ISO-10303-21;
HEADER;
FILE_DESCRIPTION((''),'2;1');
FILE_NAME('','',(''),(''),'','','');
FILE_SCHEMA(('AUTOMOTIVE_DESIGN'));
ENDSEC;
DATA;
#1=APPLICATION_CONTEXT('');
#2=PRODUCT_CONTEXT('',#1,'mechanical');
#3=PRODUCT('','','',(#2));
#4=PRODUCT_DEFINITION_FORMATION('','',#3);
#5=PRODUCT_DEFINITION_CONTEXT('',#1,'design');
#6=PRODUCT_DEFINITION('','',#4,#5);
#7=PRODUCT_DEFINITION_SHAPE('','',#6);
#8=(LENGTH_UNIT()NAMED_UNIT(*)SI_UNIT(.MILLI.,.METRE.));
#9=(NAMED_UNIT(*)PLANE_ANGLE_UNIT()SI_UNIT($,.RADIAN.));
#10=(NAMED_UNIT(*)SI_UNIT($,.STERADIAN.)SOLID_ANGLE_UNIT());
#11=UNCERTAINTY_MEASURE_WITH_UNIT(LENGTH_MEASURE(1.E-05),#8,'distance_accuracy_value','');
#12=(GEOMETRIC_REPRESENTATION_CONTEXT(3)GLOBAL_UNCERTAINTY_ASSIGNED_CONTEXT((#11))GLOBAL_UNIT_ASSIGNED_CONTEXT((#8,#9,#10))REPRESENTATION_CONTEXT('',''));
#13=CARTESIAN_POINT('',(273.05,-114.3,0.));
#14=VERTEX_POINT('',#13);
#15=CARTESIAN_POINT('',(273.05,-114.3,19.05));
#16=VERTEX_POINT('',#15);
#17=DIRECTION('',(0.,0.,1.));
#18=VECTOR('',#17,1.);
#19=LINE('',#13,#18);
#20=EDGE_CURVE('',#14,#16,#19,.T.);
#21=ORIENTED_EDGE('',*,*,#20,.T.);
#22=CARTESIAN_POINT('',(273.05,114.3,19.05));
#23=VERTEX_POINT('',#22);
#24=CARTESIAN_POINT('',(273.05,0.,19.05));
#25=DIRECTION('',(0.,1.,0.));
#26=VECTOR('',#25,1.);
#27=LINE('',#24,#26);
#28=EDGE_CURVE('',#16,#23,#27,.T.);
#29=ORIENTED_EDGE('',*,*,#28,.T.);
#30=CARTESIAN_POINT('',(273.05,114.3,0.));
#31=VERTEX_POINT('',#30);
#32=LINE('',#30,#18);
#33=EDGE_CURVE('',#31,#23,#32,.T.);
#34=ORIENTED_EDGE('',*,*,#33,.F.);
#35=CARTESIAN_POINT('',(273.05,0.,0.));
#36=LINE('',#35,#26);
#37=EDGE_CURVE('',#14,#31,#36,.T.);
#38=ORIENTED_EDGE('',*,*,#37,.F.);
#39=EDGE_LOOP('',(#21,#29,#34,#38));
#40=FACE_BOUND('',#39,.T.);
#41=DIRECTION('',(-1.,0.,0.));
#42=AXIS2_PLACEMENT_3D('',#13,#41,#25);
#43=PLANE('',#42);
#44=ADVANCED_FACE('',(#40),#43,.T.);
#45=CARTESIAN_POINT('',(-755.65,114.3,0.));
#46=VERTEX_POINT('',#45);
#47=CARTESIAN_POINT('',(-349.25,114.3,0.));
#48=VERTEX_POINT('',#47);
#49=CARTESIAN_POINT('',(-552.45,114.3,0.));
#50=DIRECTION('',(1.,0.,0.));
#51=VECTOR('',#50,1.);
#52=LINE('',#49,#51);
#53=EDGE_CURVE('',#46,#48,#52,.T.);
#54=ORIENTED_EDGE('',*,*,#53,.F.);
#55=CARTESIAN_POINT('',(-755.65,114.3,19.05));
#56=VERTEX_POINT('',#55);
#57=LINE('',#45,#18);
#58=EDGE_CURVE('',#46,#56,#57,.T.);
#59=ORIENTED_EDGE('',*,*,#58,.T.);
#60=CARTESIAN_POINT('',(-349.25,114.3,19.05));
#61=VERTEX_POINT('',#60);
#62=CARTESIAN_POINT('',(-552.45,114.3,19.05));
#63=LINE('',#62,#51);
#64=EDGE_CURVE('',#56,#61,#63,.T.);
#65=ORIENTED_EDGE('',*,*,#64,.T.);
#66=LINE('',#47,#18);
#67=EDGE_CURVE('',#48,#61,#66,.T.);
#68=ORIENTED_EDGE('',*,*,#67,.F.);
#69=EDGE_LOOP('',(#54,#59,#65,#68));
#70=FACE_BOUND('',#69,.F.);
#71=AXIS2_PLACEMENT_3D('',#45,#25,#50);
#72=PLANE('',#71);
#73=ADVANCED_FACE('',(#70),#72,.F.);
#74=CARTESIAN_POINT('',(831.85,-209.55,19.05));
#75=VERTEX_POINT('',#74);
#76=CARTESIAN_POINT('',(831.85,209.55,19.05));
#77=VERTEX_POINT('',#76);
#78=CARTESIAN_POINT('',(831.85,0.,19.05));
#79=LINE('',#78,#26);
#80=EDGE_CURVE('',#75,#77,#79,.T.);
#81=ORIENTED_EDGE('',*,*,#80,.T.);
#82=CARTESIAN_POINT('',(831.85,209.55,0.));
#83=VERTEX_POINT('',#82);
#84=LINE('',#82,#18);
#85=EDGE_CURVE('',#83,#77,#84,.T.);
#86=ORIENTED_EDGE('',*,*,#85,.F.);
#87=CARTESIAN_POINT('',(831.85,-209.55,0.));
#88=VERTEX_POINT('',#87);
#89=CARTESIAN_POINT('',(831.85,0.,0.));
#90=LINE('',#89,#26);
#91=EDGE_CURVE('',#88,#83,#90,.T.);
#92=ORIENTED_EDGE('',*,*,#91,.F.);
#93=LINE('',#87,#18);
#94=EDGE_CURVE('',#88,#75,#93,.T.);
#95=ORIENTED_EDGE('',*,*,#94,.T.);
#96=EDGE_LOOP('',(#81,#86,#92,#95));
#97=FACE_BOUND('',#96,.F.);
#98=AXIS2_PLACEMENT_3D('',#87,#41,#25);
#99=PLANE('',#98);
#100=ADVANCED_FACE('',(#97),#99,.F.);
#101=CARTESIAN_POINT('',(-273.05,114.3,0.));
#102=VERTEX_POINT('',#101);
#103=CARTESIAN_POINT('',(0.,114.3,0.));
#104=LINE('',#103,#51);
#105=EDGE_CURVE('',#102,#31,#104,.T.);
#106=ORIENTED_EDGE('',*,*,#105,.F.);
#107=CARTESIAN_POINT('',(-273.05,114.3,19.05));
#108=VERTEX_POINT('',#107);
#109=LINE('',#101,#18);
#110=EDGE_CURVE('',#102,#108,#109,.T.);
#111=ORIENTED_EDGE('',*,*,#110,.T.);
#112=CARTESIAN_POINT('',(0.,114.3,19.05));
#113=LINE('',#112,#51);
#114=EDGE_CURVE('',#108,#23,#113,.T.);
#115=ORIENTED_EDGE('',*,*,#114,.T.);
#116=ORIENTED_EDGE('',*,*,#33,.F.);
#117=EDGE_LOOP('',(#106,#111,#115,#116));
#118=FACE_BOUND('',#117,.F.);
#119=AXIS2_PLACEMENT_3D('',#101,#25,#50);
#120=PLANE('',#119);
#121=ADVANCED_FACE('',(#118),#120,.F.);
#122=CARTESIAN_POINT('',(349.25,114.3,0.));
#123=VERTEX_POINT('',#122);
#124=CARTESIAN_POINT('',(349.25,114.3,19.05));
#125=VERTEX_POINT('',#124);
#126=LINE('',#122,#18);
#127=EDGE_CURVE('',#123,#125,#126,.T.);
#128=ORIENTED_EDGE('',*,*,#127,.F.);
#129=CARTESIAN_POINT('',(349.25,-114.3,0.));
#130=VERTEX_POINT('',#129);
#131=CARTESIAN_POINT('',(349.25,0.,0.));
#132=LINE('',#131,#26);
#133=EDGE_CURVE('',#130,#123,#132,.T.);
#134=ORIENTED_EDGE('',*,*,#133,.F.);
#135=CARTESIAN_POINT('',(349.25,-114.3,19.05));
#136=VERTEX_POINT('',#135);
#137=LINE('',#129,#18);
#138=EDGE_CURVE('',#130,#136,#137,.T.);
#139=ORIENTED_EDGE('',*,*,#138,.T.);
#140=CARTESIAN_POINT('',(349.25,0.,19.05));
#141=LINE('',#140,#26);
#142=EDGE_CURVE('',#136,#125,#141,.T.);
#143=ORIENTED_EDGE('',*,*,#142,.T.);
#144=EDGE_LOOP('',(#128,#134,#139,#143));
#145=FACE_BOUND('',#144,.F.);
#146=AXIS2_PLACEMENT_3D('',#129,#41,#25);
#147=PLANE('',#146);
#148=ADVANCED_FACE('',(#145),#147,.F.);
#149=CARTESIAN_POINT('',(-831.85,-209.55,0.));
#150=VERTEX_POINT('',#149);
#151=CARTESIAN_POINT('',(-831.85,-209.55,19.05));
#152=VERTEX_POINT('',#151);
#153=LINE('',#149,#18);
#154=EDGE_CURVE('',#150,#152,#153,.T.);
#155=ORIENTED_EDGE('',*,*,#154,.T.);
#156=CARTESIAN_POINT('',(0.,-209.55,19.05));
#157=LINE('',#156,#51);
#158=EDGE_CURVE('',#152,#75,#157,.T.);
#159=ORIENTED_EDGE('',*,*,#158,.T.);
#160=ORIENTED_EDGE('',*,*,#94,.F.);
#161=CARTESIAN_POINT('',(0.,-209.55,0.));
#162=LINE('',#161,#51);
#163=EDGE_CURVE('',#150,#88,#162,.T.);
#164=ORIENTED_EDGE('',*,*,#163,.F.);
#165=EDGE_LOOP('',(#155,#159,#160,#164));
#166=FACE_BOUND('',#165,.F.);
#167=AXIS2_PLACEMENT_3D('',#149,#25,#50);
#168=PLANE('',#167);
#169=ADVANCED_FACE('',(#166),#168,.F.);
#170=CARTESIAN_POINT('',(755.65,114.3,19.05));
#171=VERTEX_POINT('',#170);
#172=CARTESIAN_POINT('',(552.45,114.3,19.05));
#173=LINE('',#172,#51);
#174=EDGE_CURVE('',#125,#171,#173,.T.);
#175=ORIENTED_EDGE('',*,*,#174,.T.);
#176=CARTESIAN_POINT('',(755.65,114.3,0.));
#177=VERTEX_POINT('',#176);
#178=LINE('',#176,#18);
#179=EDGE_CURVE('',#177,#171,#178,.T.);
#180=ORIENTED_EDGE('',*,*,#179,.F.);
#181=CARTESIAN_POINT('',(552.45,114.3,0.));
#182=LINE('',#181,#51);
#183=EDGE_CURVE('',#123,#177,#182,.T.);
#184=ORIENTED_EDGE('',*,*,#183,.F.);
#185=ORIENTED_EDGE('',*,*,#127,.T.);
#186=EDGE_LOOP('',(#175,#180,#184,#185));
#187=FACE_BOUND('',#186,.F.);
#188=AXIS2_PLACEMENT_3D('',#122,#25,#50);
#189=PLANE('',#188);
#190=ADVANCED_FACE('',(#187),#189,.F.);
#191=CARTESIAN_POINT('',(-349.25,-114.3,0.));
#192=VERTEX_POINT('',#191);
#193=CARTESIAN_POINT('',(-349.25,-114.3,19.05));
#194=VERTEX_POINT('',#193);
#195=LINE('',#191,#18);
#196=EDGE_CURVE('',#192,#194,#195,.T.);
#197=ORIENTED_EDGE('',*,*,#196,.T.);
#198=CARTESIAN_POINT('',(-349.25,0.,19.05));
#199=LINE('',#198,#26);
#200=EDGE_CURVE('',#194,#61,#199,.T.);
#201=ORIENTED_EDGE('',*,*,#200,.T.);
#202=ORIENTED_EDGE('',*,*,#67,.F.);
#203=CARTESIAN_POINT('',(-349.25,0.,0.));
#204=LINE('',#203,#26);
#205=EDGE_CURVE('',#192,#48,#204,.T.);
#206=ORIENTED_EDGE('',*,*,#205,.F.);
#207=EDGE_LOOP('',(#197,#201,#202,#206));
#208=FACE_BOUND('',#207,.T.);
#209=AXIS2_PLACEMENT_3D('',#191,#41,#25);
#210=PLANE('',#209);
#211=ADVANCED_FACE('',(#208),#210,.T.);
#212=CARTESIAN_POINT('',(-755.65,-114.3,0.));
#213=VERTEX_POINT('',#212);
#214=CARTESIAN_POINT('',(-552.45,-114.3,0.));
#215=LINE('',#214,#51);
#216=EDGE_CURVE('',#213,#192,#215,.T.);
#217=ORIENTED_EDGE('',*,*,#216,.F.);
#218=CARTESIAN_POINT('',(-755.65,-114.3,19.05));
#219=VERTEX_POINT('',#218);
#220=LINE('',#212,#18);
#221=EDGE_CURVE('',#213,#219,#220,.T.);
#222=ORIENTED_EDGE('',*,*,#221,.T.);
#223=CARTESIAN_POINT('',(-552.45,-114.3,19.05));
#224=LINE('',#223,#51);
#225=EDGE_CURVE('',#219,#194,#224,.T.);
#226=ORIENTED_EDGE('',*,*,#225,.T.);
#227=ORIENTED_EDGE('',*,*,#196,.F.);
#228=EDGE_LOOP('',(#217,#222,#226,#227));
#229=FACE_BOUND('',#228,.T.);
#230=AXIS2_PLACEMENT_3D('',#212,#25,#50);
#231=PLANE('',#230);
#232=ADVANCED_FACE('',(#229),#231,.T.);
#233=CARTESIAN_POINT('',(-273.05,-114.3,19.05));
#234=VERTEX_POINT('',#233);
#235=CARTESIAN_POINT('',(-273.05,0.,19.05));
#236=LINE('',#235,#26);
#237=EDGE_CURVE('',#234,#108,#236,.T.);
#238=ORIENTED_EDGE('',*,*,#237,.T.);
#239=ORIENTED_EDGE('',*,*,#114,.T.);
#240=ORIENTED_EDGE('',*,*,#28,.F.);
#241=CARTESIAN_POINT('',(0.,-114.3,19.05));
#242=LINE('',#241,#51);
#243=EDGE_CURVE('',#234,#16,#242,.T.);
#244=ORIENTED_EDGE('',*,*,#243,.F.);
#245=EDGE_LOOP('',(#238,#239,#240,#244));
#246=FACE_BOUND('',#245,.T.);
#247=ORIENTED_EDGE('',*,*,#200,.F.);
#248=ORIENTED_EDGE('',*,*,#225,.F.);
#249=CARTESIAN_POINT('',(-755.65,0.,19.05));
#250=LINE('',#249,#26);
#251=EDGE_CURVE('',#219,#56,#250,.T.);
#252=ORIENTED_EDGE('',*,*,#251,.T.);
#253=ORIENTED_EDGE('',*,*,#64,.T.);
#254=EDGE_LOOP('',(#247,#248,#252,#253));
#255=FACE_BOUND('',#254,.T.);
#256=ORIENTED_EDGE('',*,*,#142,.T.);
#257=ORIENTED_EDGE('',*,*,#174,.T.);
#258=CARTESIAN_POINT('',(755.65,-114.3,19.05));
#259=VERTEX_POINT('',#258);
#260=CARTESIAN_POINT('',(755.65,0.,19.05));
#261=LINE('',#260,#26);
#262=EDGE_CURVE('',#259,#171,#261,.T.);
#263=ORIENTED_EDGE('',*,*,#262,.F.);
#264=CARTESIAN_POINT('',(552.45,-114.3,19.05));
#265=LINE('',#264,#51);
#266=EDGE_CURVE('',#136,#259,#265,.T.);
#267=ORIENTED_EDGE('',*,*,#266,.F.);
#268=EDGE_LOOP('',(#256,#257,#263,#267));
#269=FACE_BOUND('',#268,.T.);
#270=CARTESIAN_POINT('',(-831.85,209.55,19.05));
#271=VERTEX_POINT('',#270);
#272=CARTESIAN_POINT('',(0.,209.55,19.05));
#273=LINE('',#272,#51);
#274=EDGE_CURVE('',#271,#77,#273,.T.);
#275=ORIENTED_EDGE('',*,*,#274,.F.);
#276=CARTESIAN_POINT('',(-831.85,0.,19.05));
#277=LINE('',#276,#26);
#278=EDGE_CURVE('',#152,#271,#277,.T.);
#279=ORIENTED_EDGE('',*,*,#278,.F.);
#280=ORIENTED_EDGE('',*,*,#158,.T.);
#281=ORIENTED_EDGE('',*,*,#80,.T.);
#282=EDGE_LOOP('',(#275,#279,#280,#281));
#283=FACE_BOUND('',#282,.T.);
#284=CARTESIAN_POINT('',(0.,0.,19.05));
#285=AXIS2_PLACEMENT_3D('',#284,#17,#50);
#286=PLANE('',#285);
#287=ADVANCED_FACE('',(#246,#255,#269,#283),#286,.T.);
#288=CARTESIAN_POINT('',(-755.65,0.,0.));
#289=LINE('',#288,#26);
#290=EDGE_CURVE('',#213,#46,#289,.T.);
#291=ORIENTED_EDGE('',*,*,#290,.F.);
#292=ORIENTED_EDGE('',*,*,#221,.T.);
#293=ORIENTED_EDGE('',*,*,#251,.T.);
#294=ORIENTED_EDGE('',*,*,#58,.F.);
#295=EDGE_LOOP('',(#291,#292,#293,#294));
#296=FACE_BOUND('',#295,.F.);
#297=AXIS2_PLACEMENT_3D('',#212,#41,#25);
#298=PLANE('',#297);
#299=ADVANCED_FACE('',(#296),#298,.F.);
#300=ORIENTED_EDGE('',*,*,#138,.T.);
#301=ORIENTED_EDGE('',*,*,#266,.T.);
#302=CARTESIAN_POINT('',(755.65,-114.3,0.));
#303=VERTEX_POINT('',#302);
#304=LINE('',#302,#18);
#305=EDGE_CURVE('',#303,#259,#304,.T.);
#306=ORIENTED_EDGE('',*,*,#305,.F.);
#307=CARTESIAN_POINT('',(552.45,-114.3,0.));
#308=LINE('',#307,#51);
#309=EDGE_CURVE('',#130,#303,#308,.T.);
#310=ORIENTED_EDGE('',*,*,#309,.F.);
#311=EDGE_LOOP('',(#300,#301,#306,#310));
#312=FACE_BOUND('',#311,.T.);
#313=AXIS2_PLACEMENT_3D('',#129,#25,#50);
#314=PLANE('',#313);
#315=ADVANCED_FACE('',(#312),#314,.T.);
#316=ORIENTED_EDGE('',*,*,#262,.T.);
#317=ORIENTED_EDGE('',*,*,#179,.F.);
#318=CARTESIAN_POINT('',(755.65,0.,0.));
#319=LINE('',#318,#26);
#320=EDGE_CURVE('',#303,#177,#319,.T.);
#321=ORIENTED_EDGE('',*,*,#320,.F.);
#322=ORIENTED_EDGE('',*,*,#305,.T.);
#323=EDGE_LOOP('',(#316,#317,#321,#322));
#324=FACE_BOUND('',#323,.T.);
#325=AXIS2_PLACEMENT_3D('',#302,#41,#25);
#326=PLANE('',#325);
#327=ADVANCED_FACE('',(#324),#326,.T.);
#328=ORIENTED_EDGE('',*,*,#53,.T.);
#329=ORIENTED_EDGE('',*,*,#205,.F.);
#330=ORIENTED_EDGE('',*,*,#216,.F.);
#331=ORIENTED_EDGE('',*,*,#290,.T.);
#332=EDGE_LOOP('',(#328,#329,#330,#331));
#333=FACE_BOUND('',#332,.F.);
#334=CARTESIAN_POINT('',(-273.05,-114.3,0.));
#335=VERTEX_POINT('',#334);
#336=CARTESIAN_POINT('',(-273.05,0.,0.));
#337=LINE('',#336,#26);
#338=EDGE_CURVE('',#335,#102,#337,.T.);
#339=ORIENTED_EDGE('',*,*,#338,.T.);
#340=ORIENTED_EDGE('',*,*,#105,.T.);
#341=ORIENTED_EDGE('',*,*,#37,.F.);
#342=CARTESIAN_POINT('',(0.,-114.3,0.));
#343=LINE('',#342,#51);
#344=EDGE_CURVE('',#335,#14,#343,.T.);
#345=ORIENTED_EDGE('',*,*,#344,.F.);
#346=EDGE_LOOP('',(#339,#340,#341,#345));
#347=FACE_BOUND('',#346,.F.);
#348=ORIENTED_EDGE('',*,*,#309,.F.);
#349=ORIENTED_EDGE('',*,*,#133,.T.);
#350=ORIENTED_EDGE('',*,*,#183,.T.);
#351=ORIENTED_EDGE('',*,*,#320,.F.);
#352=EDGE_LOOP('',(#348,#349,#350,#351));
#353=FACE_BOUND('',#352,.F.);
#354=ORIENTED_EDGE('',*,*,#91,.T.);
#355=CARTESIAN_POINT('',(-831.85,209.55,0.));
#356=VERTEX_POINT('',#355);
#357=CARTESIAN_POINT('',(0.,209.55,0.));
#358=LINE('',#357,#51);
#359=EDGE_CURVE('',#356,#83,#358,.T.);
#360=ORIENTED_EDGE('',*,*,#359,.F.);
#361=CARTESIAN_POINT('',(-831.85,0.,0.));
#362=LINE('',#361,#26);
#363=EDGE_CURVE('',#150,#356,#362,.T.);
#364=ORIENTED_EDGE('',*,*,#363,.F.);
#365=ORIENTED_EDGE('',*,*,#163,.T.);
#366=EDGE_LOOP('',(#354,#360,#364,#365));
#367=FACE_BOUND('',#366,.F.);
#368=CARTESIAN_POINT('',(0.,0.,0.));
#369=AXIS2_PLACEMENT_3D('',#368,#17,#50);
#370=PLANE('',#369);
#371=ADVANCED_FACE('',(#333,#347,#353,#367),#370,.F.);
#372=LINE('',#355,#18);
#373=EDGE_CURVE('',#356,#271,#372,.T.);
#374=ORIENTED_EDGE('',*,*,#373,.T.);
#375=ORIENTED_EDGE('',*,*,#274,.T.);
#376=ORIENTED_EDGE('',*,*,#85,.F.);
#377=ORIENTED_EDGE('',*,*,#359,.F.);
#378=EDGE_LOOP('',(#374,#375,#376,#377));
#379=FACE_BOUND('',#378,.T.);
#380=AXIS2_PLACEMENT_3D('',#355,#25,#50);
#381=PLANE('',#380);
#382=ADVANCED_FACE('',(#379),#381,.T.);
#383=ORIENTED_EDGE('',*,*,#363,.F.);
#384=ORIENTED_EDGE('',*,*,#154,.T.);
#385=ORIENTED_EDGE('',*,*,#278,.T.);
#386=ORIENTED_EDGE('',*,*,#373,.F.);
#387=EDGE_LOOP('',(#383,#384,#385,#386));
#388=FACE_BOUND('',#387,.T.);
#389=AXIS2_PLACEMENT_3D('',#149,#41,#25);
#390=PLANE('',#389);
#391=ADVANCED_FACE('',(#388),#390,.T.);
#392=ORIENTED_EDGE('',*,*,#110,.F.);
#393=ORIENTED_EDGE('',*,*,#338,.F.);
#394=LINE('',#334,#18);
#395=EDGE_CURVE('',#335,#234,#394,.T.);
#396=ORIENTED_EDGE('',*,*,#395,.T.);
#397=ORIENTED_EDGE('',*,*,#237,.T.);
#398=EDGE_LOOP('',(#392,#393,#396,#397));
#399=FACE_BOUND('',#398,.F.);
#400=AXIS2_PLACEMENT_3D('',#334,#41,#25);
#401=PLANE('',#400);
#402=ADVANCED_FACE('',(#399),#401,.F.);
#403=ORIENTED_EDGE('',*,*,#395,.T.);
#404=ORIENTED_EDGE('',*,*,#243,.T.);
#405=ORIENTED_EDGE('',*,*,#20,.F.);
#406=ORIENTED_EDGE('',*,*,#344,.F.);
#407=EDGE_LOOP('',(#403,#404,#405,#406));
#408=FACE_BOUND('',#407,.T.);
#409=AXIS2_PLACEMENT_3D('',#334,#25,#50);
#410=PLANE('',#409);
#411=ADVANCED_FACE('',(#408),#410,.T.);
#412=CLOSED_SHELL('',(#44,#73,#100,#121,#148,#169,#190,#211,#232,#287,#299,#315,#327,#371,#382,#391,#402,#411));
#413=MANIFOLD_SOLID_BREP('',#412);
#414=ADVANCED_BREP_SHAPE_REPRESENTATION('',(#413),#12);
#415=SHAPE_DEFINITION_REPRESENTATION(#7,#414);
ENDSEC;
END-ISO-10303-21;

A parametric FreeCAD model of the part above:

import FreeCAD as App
import Part
import Sketcher
Q = App.Units.Quantity

doc = App.newDocument("Part")
body = doc.addObject("PartDesign::Body", "Body")

sketch1 = body.newObject("Sketcher::SketchObject", "Sketch")
sketch1.AttachmentSupport = (doc.getObject("XY_Plane"), [""])
sketch1.MapMode = "FlatFace"
sketch1.addGeometry([
    Part.LineSegment(App.Vector(-832, 210, 0), App.Vector(-832, -210, 0)),
    Part.LineSegment(App.Vector(-832, -210, 0), App.Vector(832, -210, 0)),
    Part.LineSegment(App.Vector(832, -210, 0), App.Vector(832, 210, 0)),
    Part.LineSegment(App.Vector(832, 210, 0), App.Vector(-832, 210, 0)),
    Part.LineSegment(App.Vector(-349, -114, 0), App.Vector(-756, -114, 0)),
    Part.LineSegment(App.Vector(-756, -114, 0), App.Vector(-756, 114, 0)),
    Part.LineSegment(App.Vector(-756, 114, 0), App.Vector(-349, 114, 0)),
    Part.LineSegment(App.Vector(-349, 114, 0), App.Vector(-349, -114, 0)),
    Part.LineSegment(App.Vector(273, -114, 0), App.Vector(-273, -114, 0)),
    Part.LineSegment(App.Vector(-273, -114, 0), App.Vector(-273, 114, 0)),
    Part.LineSegment(App.Vector(-273, 114, 0), App.Vector(273, 114, 0)),
    Part.LineSegment(App.Vector(273, 114, 0), App.Vector(273, -114, 0)),
    Part.LineSegment(App.Vector(756, -114, 0), App.Vector(349, -114, 0)),
    Part.LineSegment(App.Vector(349, -114, 0), App.Vector(349, 114, 0)),
    Part.LineSegment(App.Vector(349, 114, 0), App.Vector(756, 114, 0)),
    Part.LineSegment(App.Vector(756, 114, 0), App.Vector(756, -114, 0)),
], False)
sketch1.addConstraint([
    Sketcher.Constraint("Coincident", 0, 2, 1, 1),
    Sketcher.Constraint("Coincident", 1, 2, 2, 1),
    Sketcher.Constraint("Coincident", 2, 2, 3, 1),
    Sketcher.Constraint("Coincident", 3, 2, 0, 1),
    Sketcher.Constraint("Coincident", 4, 2, 5, 1),
    Sketcher.Constraint("Coincident", 5, 2, 6, 1),
    Sketcher.Constraint("Coincident", 6, 2, 7, 1),
    Sketcher.Constraint("Coincident", 7, 2, 4, 1),
    Sketcher.Constraint("Coincident", 8, 2, 9, 1),
    Sketcher.Constraint("Coincident", 9, 2, 10, 1),
    Sketcher.Constraint("Coincident", 10, 2, 11, 1),
    Sketcher.Constraint("Coincident", 11, 2, 8, 1),
    Sketcher.Constraint("Coincident", 12, 2, 13, 1),
    Sketcher.Constraint("Coincident", 13, 2, 14, 1),
    Sketcher.Constraint("Coincident", 14, 2, 15, 1),
    Sketcher.Constraint("Coincident", 15, 2, 12, 1),
    Sketcher.Constraint("Vertical", 0),
    Sketcher.Constraint("Horizontal", 1),
    Sketcher.Constraint("Vertical", 2),
    Sketcher.Constraint("Horizontal", 3),
    Sketcher.Constraint("Horizontal", 4),
    Sketcher.Constraint("Vertical", 5),
    Sketcher.Constraint("Horizontal", 6),
    Sketcher.Constraint("Vertical", 7),
    Sketcher.Constraint("Horizontal", 8),
    Sketcher.Constraint("Vertical", 9),
    Sketcher.Constraint("Horizontal", 10),
    Sketcher.Constraint("Vertical", 11),
    Sketcher.Constraint("Horizontal", 12),
    Sketcher.Constraint("Vertical", 13),
    Sketcher.Constraint("Horizontal", 14),
    Sketcher.Constraint("Vertical", 15),
    Sketcher.Constraint("Symmetric", 0, 2, 2, 2, -1, 1),
    Sketcher.Constraint("Symmetric", 8, 2, 10, 2, -1, 1),
    Sketcher.Constraint("Symmetric", 6, 2, 12, 2, -1, 1),
    Sketcher.Constraint("Symmetric", 4, 2, 14, 2, -1, 1),
    Sketcher.Constraint("Horizontal", 7, 2, 8, 2),
    Sketcher.Constraint("Horizontal", 6, 2, 9, 2),
    Sketcher.Constraint("DistanceX", 4, 2, 4, 1, Q("16 in")),
    Sketcher.Constraint("DistanceY", 5, 1, 5, 2, Q("9 in")),
    Sketcher.Constraint("DistanceX", 1, 1, 1, 2, Q("65.5 in")),
    Sketcher.Constraint("DistanceX", 8, 2, 8, 1, Q("21.5 in")),
    Sketcher.Constraint("DistanceY", 0, 2, 0, 1, Q("16.5 in")),
    Sketcher.Constraint("DistanceX", 0, 2, 4, 2, Q("3 in")),
])
pad1 = body.newObject("PartDesign::Pad", "Pad")
pad1.Profile = sketch1
pad1.Length = Q("0.75 in")

doc.recompute()
